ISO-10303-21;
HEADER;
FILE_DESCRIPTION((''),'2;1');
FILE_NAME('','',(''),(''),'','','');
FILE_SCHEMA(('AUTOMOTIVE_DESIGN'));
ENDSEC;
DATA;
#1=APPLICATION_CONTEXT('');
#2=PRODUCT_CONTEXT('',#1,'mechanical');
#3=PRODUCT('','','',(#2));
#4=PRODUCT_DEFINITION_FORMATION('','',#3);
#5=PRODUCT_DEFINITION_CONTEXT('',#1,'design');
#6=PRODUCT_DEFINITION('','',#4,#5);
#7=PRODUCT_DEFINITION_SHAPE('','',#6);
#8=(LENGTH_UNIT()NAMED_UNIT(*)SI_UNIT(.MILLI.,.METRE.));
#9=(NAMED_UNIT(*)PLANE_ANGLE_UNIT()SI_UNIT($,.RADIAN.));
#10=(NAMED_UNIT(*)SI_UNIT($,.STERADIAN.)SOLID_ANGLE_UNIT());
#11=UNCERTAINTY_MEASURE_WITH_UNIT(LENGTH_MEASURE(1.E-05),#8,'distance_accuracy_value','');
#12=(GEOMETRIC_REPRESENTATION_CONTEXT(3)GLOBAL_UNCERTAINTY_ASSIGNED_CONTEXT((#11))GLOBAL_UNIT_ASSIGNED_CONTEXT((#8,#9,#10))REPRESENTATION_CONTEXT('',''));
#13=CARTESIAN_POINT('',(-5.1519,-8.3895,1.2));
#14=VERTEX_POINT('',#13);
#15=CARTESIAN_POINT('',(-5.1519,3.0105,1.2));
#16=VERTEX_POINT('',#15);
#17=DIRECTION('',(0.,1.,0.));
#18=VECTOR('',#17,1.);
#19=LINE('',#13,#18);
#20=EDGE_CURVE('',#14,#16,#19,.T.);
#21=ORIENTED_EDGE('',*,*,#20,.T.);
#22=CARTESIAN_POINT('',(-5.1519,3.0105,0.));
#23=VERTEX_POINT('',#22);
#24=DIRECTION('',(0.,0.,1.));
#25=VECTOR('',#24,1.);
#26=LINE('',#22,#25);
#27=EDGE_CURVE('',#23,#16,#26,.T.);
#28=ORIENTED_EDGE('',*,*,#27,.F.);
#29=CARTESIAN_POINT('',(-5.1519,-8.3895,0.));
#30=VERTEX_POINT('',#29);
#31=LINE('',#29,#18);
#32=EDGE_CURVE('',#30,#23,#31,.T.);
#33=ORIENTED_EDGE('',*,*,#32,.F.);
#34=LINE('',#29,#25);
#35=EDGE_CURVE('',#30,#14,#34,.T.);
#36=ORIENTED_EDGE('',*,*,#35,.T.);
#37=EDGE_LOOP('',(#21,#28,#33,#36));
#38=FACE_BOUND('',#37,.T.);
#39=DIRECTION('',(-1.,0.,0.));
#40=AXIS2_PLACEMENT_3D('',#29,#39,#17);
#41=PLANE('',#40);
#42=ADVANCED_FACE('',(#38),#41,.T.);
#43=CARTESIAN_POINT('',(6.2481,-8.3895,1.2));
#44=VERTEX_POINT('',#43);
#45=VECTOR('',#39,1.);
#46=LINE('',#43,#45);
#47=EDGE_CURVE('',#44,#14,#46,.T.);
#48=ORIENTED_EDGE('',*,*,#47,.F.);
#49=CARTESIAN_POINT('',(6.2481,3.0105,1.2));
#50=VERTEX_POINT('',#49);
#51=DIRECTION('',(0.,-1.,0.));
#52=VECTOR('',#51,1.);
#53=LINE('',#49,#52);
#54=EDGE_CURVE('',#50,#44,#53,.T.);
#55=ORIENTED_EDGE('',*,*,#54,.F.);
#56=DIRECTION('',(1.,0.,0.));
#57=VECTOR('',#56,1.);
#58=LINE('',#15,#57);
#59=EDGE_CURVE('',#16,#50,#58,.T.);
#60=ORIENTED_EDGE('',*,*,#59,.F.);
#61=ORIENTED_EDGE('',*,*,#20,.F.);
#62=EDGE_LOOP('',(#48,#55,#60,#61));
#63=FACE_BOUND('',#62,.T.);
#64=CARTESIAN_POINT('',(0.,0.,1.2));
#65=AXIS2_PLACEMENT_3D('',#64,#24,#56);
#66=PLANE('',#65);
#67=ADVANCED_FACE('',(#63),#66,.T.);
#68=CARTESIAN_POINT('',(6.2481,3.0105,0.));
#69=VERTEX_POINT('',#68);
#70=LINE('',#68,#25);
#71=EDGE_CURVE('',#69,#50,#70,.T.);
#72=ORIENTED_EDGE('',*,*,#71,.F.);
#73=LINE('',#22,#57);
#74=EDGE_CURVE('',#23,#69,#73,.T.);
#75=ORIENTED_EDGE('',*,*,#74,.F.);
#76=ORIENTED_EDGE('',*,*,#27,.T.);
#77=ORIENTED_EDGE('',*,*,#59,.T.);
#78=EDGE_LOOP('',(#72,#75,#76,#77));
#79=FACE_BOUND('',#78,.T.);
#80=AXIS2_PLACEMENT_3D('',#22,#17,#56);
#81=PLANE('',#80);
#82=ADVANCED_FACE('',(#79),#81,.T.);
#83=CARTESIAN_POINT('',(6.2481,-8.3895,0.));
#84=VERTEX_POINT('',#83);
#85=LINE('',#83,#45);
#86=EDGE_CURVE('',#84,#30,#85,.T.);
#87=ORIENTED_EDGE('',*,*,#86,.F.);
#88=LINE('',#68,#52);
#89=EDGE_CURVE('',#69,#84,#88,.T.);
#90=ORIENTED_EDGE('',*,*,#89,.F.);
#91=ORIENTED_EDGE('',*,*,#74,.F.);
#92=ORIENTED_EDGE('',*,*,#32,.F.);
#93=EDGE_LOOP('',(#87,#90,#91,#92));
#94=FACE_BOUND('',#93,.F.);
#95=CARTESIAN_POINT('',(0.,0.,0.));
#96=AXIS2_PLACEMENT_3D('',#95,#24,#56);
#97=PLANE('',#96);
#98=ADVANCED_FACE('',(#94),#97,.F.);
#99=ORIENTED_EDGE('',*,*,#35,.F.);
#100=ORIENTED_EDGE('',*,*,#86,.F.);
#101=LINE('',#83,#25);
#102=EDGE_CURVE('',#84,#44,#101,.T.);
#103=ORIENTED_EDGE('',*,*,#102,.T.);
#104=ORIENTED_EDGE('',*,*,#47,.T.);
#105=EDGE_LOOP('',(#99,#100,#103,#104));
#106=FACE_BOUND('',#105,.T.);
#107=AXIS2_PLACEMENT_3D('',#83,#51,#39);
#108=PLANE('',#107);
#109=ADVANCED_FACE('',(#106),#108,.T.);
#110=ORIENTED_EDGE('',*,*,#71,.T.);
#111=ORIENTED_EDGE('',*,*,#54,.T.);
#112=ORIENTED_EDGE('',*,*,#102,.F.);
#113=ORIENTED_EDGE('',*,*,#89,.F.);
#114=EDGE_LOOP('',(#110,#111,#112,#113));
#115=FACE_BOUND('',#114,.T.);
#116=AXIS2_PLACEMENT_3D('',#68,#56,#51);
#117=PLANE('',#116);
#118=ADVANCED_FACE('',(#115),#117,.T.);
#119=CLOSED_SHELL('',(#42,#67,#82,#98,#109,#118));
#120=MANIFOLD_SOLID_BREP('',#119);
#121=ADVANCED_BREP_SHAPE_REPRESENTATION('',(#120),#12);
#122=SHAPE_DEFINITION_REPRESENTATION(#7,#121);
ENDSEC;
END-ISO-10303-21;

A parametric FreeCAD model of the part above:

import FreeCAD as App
import Part
import Sketcher

V = App.Vector
Q = App.Units.Quantity

doc = App.newDocument("Part")
params = doc.addObject("Spreadsheet::Sheet", "Params")
for row, (alias, value) in enumerate([
    ("sketch1_width", "11.4 mm"),
    ("pad1_length", "1.2 mm"),
], start=1):
    params.set(f"A{row}", alias)
    params.set(f"B{row}", "=" + value)
    params.setAlias(f"B{row}", alias)

body = doc.addObject("PartDesign::Body", "Body")

# Sketch on XY plane
sketch1 = doc.addObject("Sketcher::SketchObject", "Sketch")
body.addObject(sketch1)
sketch1.AttachmentSupport = (doc.XY_Plane, [""])
sketch1.MapMode = "FlatFace"
sketch1.addGeometry(Part.LineSegment(V(6.2481, 3.0105, 0), V(-5.1519, 3.0105, 0)), False)
sketch1.addGeometry(Part.LineSegment(V(-5.1519, 3.0105, 0), V(-5.1519, -8.3895, 0)), False)
sketch1.addGeometry(Part.LineSegment(V(-5.1519, -8.3895, 0), V(6.2481, -8.3895, 0)), False)
sketch1.addGeometry(Part.LineSegment(V(6.2481, -8.3895, 0), V(6.2481, 3.0105, 0)), False)
sketch1.addConstraint(Sketcher.Constraint("Coincident", 0, 2, 1, 1))
sketch1.addConstraint(Sketcher.Constraint("Coincident", 1, 2, 2, 1))
sketch1.addConstraint(Sketcher.Constraint("Coincident", 2, 2, 3, 1))
sketch1.addConstraint(Sketcher.Constraint("Coincident", 3, 2, 0, 1))
sketch1.addConstraint(Sketcher.Constraint("Horizontal", 0))
sketch1.addConstraint(Sketcher.Constraint("Vertical", 1))
sketch1.addConstraint(Sketcher.Constraint("Horizontal", 2))
sketch1.addConstraint(Sketcher.Constraint("Vertical", 3))
sketch1.addConstraint(Sketcher.Constraint("Equal", 2, 1))
sketch1.addConstraint(Sketcher.Constraint("DistanceX", 0, 2, 0, 1, Q("11.4 mm")))
sketch1.addConstraint(Sketcher.Constraint("DistanceX", 0, 2, -1, 1, Q("5.152 mm")))
sketch1.addConstraint(Sketcher.Constraint("DistanceY", -1, 1, 0, 2, Q("3.0105 mm")))
sketch1.setExpression("Constraints[9]", "Params.sketch1_width")
pad1 = doc.addObject("PartDesign::Pad", "Pad")
body.addObject(pad1)
pad1.Profile = sketch1
pad1.setExpression("Length", "Params.pad1_length")

doc.recompute()
